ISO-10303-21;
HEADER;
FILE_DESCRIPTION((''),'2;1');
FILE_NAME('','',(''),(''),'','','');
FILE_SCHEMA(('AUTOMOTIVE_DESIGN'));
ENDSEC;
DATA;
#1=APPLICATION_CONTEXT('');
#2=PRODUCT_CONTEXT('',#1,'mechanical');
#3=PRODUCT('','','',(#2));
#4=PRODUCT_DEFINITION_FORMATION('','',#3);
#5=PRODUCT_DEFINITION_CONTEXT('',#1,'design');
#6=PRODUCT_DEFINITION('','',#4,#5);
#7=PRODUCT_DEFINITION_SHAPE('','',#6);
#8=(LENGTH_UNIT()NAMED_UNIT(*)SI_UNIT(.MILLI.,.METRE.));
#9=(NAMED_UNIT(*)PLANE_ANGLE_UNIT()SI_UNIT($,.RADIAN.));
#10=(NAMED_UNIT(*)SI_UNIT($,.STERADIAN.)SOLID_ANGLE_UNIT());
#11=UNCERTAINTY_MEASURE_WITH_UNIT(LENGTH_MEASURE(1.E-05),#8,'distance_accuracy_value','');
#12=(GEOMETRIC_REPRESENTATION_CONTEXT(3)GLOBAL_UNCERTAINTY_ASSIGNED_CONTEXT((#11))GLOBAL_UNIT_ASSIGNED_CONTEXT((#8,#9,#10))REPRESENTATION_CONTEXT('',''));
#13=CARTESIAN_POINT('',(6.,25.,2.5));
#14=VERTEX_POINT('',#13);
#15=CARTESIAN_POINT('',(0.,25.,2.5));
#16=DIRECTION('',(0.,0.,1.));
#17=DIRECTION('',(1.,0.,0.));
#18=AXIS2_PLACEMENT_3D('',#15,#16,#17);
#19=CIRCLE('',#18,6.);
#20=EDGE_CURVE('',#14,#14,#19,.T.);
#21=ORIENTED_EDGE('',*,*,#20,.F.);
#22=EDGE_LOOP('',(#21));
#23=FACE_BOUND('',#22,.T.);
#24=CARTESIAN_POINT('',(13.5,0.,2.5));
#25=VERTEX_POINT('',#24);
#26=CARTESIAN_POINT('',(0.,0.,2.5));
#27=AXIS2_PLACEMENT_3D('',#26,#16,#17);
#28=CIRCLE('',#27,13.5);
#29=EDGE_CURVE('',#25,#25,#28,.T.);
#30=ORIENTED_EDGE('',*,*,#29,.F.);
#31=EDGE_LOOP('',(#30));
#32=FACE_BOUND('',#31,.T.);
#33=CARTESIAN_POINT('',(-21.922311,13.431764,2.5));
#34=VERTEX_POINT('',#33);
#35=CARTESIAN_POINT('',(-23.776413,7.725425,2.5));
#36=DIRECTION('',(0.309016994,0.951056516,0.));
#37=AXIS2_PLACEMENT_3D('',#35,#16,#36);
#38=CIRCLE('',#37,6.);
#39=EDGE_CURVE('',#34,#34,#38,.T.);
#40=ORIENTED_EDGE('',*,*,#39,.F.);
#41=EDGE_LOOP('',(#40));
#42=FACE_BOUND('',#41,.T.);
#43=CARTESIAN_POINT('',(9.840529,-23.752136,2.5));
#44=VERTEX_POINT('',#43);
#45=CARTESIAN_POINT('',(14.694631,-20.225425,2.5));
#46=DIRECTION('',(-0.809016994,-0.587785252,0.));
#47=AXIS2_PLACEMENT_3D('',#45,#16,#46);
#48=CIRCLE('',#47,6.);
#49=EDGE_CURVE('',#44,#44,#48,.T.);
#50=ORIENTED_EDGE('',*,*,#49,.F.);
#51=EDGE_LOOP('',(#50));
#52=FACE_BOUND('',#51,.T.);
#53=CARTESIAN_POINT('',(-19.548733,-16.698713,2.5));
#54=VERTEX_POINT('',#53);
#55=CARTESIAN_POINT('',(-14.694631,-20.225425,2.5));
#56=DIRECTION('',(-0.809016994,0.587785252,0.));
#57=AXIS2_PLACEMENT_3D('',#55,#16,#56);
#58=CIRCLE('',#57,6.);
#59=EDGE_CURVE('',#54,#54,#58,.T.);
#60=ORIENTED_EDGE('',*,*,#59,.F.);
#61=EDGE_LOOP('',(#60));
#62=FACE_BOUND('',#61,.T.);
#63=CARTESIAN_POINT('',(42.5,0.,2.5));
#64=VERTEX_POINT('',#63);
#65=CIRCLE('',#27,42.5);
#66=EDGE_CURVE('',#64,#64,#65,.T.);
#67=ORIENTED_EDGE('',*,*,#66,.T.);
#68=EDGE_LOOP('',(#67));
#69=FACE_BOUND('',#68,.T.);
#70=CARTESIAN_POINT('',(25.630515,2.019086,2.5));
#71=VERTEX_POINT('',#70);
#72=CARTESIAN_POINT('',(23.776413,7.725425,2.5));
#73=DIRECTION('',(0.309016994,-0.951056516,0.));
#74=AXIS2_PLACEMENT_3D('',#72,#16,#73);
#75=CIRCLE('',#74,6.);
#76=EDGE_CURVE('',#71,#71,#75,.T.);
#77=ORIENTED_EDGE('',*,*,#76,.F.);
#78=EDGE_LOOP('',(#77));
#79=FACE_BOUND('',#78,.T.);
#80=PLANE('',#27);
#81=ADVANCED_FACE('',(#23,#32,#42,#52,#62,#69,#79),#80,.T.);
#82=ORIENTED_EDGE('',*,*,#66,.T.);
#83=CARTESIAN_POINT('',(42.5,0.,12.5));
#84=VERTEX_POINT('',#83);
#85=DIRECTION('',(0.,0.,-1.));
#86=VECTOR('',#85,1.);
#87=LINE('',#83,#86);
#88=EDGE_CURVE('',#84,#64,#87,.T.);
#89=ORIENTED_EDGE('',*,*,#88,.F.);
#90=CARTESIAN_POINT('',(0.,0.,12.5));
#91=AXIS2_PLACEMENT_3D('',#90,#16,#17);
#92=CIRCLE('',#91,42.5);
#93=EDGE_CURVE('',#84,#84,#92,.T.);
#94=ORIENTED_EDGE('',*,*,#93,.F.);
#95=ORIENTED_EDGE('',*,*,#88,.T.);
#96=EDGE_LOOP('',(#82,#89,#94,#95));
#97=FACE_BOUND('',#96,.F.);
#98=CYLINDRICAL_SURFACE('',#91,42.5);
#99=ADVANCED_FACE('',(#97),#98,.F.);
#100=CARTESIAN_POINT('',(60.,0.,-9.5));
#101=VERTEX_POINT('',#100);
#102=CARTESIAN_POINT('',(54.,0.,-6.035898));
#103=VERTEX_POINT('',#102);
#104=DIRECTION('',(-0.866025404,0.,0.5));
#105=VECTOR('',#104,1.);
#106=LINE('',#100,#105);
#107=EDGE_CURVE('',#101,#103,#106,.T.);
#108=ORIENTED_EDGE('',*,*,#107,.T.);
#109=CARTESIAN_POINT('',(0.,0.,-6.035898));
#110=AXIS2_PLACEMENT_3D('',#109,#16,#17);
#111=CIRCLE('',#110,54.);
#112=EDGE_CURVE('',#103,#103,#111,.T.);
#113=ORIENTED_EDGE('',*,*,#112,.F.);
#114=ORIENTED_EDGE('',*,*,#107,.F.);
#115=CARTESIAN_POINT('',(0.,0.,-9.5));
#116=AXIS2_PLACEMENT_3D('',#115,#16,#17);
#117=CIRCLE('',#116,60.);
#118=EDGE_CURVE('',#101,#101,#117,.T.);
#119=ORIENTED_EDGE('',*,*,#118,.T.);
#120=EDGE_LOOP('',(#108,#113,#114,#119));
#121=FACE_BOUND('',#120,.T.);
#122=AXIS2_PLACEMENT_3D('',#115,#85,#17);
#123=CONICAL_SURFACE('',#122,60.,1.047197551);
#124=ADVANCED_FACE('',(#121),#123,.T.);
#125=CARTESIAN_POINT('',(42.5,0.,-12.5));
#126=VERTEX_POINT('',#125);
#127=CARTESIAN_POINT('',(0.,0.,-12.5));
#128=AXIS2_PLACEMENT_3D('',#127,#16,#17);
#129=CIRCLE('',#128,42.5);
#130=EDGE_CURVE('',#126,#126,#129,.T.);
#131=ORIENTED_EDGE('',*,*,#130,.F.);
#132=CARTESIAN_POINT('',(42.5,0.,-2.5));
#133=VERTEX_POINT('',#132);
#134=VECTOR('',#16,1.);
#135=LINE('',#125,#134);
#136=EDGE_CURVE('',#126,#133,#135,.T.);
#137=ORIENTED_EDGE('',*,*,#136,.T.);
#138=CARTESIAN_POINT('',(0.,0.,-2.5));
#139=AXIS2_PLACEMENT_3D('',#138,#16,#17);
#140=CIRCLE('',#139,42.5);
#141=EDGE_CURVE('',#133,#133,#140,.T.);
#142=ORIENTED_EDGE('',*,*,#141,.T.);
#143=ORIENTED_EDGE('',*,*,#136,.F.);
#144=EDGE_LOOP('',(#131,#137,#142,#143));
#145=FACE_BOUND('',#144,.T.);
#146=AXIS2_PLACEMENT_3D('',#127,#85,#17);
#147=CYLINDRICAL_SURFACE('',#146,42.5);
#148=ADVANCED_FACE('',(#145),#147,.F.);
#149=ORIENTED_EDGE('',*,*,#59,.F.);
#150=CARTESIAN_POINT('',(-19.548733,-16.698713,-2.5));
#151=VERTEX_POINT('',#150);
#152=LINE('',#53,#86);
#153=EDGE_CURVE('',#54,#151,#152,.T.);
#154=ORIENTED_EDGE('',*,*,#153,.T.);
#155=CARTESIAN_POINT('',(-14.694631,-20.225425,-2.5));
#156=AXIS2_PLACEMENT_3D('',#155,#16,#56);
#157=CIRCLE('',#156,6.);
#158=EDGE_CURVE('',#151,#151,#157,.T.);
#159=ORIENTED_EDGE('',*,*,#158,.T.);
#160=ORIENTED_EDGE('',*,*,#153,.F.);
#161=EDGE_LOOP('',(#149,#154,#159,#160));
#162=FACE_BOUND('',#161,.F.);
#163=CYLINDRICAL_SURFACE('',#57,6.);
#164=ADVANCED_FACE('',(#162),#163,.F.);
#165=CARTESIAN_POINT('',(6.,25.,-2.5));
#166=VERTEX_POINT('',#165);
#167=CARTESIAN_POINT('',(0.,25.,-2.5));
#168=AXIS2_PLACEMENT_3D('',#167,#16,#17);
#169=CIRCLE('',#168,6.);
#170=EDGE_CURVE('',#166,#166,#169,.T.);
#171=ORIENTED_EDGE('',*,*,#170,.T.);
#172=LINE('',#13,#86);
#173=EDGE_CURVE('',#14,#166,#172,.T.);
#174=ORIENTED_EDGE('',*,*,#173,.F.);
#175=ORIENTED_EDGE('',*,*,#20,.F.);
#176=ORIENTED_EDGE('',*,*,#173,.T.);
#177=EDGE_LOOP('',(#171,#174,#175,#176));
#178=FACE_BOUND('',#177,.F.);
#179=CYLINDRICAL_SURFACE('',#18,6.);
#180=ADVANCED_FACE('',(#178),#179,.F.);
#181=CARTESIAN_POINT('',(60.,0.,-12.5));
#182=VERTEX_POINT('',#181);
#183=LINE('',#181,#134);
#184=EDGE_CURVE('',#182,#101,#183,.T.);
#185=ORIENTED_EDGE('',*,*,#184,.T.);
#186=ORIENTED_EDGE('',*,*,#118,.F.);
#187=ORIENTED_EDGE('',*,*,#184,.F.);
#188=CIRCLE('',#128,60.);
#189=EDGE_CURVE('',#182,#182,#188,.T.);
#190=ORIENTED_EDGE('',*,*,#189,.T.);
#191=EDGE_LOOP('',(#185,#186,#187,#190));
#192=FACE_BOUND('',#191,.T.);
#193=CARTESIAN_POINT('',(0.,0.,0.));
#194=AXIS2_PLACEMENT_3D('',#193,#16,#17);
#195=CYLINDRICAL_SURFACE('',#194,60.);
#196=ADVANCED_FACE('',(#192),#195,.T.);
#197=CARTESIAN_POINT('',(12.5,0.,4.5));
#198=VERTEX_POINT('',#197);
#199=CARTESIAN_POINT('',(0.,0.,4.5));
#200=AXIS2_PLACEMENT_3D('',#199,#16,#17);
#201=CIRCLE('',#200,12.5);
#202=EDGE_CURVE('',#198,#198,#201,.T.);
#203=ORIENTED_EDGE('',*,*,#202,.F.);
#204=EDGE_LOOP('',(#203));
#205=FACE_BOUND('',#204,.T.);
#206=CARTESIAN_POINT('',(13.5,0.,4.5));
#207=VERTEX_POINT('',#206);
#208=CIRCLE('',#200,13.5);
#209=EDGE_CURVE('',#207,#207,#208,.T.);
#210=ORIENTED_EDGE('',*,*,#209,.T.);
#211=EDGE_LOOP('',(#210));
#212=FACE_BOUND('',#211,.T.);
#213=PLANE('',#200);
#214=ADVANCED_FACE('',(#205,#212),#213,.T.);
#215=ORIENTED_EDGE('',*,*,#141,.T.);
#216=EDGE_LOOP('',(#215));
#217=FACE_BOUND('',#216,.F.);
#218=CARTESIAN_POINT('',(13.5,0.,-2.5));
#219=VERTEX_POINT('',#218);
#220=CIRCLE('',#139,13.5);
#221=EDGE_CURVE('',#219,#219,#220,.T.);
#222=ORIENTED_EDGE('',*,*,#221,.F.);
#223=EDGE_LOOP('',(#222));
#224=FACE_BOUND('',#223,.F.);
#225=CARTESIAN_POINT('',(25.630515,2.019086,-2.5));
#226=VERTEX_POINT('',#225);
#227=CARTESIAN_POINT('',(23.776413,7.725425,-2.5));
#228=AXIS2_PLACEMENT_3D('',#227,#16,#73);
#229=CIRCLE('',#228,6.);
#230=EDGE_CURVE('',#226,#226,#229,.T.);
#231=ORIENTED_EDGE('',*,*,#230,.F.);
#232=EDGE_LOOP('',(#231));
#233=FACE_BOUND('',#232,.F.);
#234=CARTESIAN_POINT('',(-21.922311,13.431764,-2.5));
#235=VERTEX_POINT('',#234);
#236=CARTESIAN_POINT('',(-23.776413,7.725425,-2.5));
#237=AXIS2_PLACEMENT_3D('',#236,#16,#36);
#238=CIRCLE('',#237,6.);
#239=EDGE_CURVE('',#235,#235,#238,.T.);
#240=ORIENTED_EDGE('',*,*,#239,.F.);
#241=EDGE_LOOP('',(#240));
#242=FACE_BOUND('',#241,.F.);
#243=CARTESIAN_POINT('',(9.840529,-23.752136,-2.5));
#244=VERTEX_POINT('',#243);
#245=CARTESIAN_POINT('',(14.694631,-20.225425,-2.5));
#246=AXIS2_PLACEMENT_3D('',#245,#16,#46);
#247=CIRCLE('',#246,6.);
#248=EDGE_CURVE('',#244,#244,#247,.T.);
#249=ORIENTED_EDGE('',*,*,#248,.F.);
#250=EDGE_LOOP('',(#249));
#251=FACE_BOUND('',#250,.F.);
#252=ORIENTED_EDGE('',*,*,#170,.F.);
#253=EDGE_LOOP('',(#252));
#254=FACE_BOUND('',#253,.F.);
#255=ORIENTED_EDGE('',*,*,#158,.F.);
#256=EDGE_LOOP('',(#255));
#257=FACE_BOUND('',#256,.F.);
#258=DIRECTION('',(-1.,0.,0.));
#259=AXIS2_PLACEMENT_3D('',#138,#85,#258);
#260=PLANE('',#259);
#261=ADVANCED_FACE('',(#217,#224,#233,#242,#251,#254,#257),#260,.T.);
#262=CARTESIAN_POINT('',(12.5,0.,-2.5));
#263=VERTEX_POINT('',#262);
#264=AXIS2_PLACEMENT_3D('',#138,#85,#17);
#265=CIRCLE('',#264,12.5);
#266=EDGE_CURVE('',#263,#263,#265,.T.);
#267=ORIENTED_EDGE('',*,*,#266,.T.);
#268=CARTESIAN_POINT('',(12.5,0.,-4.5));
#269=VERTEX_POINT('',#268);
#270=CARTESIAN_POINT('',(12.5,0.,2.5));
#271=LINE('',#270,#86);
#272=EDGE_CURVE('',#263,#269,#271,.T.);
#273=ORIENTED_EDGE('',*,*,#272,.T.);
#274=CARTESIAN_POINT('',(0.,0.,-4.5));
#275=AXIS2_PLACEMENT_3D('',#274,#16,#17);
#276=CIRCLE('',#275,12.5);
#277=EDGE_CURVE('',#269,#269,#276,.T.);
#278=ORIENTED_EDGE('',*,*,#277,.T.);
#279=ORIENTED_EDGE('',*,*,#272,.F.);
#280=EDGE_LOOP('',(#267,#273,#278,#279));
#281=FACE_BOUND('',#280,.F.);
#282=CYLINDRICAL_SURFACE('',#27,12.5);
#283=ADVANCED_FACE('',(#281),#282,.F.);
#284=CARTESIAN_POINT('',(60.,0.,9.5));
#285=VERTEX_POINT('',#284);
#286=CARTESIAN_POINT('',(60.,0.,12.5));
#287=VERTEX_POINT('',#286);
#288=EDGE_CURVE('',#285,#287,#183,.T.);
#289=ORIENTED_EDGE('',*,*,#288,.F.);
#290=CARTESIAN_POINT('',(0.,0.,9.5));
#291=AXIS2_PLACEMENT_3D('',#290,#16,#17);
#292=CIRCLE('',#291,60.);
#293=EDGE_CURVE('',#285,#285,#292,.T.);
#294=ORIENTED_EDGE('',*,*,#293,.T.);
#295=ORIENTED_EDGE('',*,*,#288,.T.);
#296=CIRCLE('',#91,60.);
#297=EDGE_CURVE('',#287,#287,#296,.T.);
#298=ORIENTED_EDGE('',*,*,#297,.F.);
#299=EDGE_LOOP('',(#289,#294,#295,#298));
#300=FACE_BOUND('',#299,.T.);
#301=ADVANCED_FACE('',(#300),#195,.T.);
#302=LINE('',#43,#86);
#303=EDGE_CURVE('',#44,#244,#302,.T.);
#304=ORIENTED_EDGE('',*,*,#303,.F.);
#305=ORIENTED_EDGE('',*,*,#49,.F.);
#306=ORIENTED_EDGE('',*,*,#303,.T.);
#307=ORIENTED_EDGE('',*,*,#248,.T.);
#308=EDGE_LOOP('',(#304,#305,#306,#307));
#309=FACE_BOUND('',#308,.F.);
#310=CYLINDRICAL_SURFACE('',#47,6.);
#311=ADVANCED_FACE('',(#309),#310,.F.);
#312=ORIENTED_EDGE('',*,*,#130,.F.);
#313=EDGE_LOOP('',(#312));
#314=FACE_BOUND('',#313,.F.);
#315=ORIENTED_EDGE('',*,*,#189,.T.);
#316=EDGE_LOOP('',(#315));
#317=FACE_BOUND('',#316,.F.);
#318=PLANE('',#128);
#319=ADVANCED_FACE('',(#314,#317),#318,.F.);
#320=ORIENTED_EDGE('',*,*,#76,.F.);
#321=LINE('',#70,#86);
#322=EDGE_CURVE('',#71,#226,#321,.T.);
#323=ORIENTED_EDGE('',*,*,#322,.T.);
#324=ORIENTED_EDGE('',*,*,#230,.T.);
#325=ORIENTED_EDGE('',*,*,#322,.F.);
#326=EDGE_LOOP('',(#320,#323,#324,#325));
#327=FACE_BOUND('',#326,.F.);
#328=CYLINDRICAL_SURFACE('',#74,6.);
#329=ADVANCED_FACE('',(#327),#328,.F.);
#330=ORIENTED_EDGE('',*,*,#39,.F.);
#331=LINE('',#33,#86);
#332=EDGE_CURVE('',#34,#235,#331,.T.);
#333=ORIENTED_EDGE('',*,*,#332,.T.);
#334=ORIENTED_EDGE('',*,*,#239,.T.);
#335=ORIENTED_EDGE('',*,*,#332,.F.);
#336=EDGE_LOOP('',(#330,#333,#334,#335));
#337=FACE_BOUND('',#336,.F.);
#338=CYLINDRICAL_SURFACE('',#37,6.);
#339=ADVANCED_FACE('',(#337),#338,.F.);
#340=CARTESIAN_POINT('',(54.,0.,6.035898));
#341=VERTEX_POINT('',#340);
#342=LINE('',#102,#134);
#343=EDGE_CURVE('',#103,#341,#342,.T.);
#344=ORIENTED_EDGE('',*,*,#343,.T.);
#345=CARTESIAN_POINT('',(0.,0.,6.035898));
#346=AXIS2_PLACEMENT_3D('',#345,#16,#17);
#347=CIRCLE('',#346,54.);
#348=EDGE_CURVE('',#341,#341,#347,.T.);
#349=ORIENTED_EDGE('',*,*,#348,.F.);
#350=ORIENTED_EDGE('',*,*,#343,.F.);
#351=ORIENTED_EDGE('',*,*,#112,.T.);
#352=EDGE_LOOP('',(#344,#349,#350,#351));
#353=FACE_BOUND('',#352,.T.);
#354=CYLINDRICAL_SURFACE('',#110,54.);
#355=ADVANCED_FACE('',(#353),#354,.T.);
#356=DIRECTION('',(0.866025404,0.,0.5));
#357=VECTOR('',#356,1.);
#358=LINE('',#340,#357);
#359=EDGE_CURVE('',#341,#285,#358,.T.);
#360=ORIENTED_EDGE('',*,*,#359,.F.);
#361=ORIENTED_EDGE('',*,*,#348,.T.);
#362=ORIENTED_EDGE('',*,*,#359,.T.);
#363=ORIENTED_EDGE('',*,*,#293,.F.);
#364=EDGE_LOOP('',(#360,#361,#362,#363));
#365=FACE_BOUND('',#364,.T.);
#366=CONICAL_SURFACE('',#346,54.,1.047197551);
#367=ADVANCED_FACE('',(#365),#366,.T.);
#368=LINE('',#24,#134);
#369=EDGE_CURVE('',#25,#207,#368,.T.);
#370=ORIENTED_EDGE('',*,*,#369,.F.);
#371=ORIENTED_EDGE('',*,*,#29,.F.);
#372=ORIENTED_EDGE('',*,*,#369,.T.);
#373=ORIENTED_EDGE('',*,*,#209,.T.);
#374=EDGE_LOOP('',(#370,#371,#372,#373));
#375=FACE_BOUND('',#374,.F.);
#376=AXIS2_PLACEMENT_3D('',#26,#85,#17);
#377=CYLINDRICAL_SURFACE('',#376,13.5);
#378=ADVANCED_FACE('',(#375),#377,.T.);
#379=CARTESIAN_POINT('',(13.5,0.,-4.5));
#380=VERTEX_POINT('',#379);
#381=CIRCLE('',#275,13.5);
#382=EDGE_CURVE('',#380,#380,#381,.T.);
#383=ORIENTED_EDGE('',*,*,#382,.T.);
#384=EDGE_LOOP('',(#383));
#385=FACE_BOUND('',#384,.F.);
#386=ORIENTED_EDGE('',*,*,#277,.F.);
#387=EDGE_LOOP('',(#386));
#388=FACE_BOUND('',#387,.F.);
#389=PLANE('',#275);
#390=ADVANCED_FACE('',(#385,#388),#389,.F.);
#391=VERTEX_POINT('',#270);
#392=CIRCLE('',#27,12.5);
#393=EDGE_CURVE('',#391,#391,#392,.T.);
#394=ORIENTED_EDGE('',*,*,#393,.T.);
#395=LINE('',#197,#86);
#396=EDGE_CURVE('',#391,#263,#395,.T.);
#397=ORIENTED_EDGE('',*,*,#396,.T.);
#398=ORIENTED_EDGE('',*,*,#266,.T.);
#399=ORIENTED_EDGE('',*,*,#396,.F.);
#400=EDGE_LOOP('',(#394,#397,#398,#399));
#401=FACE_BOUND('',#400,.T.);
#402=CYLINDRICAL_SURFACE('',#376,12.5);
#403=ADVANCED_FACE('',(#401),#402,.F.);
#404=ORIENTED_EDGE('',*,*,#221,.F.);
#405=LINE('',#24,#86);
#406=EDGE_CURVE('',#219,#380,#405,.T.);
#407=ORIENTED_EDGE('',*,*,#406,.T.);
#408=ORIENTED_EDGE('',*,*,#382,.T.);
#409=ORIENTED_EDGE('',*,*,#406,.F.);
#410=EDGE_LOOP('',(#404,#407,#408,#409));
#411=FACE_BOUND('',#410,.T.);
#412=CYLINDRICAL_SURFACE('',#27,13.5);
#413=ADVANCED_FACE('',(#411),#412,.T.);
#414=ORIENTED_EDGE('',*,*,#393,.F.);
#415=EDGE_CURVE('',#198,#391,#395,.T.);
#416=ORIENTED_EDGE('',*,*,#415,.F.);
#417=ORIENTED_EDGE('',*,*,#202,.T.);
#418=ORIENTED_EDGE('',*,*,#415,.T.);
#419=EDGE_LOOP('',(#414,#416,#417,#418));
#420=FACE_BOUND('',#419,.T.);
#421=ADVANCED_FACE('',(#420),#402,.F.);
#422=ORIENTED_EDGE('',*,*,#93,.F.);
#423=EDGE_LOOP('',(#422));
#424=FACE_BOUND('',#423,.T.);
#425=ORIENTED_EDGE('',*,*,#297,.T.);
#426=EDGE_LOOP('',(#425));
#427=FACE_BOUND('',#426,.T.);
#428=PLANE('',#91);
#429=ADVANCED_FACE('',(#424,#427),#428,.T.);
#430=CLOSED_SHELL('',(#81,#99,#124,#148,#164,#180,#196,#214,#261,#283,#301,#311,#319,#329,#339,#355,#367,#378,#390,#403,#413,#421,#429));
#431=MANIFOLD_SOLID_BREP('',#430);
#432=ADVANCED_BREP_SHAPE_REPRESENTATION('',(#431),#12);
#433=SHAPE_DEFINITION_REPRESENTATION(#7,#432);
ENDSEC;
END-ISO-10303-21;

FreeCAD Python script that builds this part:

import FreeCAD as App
import Part
import Sketcher
from FreeCAD import Vector
Q = App.Units.Quantity


def add_polygon(sketch, points):
    """Adds a closed chain of lines whose ends are joined by coincident constraints."""
    first, n = sketch.GeometryCount, len(points)
    for a, b in zip(points, points[1:] + points[:1]):
        sketch.addGeometry(Part.LineSegment(App.Vector(*a, 0), App.Vector(*b, 0)), False)
    for i in range(n):
        sketch.addConstraint(Sketcher.Constraint("Coincident", first + i, 2, first + (i + 1) % n, 1))

doc = App.newDocument("Part")
body = doc.addObject("PartDesign::Body", "Body")

sketch1 = body.newObject("Sketcher::SketchObject", "Sketch")
sketch1.AttachmentSupport = (doc.getObject("XY_Plane"), [""])
sketch1.MapMode = "FlatFace"
sketch1.addGeometry(Part.Circle(Vector(0, 0, 0), Vector(0, 0, 1), 60), False)
sketch1.addGeometry(Part.Circle(Vector(0, 0, 0), Vector(0, 0, 1), 12), False)
sketch1.addConstraint(Sketcher.Constraint("Coincident", 0, 3, -1, 1))
sketch1.addConstraint(Sketcher.Constraint("Coincident", 1, 3, -1, 1))
sketch1.addConstraint(Sketcher.Constraint("Diameter", 0, Q("120 mm")))
sketch1.addConstraint(Sketcher.Constraint("Diameter", 1, Q("25 mm")))
pad1 = body.newObject("PartDesign::Pad", "Pad")
pad1.Profile = sketch1
pad1.Length = 25
pad1.Midplane = True

sketch2 = body.newObject("Sketcher::SketchObject", "Sketch001")
sketch2.AttachmentSupport = (doc.getObject("XY_Plane"), [""])
sketch2.MapMode = "FlatFace"
sketch2.AttachmentOffset = App.Placement(Vector(0, 0, 12.5), App.Rotation())
sketch2.addGeometry(Part.Circle(Vector(0, 0, 0), Vector(0, 0, 1), 42), False)
sketch2.addConstraint(Sketcher.Constraint("Coincident", 0, 3, -1, 1))
sketch2.addConstraint(Sketcher.Constraint("Diameter", 0, Q("85 mm")))
pocket1 = body.newObject("PartDesign::Pocket", "Pocket")
pocket1.Profile = sketch2
pocket1.Length = 10
doc.recompute()

mirrored = body.newObject("PartDesign::Mirrored", "Mirrored")
mirrored.Originals = [pocket1]
mirrored.MirrorPlane = (doc.getObject("XY_Plane"), [""])
body.Tip = mirrored

sketch3 = body.newObject("Sketcher::SketchObject", "Sketch002")
sketch3.AttachmentSupport = (doc.getObject("XY_Plane"), [""])
sketch3.MapMode = "FlatFace"
sketch3.AttachmentOffset = App.Placement(Vector(0, 0, 2.5), App.Rotation())
sketch3.addGeometry(Part.Circle(Vector(0, 25, 0), Vector(0, 0, 1), 6), False)
sketch3.addConstraint(Sketcher.Constraint("PointOnObject", 0, 3, -2))
sketch3.addConstraint(Sketcher.Constraint("Diameter", 0, Q("12 mm")))
sketch3.addConstraint(Sketcher.Constraint("DistanceY", -1, 1, 0, 3, Q("25 mm")))
pocket2 = body.newObject("PartDesign::Pocket", "Pocket001")
pocket2.Profile = sketch3
pocket2.Type = "ThroughAll"
doc.recompute()

polarpattern = body.newObject("PartDesign::PolarPattern", "PolarPattern")
polarpattern.Originals = [pocket2]
polarpattern.Axis = (doc.getObject("Z_Axis"), [""])
polarpattern.Angle = 360
polarpattern.Occurrences = 5
body.Tip = polarpattern

sketch4 = body.newObject("Sketcher::SketchObject", "Sketch003")
sketch4.AttachmentSupport = (doc.getObject("XZ_Plane"), [""])
sketch4.MapMode = "FlatFace"
add_polygon(sketch4, [(60, -10), (54, -6), (54, 6), (60, 10)])
sketch4.addConstraint(Sketcher.Constraint("Vertical", 1))
sketch4.addConstraint(Sketcher.Constraint("Vertical", 3))
sketch4.addConstraint(Sketcher.Constraint("Equal", 0, 2))
sketch4.addConstraint(Sketcher.Constraint("DistanceY", 3, 2, 3, 1, Q("19 mm")))
sketch4.addConstraint(Sketcher.Constraint("Angle", 0, Q("150 deg")))
sketch4.addConstraint(Sketcher.Constraint("DistanceX", -1, 1, 0, 2, Q("54 mm")))
sketch4.addConstraint(Sketcher.Constraint("DistanceX", -1, 1, 2, 2, Q("60 mm")))
sketch4.addConstraint(Sketcher.Constraint("DistanceY", -1, 1, 2, 2, Q("9.5 mm")))
groove = body.newObject("PartDesign::Groove", "Groove")
groove.Profile = sketch4
groove.ReferenceAxis = (sketch4, ["V_Axis"])
groove.Angle = 360

sketch5 = body.newObject("Sketcher::SketchObject", "Sketch004")
sketch5.AttachmentSupport = (doc.getObject("XY_Plane"), [""])
sketch5.MapMode = "FlatFace"
sketch5.AttachmentOffset = App.Placement(Vector(0, 0, 2.5), App.Rotation())
sketch5.addGeometry(Part.Circle(Vector(0, 0, 0), Vector(0, 0, 1), 14), False)
sketch5.addGeometry(Part.Circle(Vector(0, 0, 0), Vector(0, 0, 1), 12), False)
sketch5.addConstraint(Sketcher.Constraint("Coincident", 0, 3, -1, 1))
sketch5.addConstraint(Sketcher.Constraint("Coincident", 1, 3, -1, 1))
sketch5.addConstraint(Sketcher.Constraint("Diameter", 0, Q("27 mm")))
sketch5.addConstraint(Sketcher.Constraint("Diameter", 1, Q("25 mm")))
pad2 = body.newObject("PartDesign::Pad", "Pad001")
pad2.Profile = sketch5
pad2.Type = "TwoLengths"
pad2.Length = 2
pad2.Length2 = 7

doc.recompute()
